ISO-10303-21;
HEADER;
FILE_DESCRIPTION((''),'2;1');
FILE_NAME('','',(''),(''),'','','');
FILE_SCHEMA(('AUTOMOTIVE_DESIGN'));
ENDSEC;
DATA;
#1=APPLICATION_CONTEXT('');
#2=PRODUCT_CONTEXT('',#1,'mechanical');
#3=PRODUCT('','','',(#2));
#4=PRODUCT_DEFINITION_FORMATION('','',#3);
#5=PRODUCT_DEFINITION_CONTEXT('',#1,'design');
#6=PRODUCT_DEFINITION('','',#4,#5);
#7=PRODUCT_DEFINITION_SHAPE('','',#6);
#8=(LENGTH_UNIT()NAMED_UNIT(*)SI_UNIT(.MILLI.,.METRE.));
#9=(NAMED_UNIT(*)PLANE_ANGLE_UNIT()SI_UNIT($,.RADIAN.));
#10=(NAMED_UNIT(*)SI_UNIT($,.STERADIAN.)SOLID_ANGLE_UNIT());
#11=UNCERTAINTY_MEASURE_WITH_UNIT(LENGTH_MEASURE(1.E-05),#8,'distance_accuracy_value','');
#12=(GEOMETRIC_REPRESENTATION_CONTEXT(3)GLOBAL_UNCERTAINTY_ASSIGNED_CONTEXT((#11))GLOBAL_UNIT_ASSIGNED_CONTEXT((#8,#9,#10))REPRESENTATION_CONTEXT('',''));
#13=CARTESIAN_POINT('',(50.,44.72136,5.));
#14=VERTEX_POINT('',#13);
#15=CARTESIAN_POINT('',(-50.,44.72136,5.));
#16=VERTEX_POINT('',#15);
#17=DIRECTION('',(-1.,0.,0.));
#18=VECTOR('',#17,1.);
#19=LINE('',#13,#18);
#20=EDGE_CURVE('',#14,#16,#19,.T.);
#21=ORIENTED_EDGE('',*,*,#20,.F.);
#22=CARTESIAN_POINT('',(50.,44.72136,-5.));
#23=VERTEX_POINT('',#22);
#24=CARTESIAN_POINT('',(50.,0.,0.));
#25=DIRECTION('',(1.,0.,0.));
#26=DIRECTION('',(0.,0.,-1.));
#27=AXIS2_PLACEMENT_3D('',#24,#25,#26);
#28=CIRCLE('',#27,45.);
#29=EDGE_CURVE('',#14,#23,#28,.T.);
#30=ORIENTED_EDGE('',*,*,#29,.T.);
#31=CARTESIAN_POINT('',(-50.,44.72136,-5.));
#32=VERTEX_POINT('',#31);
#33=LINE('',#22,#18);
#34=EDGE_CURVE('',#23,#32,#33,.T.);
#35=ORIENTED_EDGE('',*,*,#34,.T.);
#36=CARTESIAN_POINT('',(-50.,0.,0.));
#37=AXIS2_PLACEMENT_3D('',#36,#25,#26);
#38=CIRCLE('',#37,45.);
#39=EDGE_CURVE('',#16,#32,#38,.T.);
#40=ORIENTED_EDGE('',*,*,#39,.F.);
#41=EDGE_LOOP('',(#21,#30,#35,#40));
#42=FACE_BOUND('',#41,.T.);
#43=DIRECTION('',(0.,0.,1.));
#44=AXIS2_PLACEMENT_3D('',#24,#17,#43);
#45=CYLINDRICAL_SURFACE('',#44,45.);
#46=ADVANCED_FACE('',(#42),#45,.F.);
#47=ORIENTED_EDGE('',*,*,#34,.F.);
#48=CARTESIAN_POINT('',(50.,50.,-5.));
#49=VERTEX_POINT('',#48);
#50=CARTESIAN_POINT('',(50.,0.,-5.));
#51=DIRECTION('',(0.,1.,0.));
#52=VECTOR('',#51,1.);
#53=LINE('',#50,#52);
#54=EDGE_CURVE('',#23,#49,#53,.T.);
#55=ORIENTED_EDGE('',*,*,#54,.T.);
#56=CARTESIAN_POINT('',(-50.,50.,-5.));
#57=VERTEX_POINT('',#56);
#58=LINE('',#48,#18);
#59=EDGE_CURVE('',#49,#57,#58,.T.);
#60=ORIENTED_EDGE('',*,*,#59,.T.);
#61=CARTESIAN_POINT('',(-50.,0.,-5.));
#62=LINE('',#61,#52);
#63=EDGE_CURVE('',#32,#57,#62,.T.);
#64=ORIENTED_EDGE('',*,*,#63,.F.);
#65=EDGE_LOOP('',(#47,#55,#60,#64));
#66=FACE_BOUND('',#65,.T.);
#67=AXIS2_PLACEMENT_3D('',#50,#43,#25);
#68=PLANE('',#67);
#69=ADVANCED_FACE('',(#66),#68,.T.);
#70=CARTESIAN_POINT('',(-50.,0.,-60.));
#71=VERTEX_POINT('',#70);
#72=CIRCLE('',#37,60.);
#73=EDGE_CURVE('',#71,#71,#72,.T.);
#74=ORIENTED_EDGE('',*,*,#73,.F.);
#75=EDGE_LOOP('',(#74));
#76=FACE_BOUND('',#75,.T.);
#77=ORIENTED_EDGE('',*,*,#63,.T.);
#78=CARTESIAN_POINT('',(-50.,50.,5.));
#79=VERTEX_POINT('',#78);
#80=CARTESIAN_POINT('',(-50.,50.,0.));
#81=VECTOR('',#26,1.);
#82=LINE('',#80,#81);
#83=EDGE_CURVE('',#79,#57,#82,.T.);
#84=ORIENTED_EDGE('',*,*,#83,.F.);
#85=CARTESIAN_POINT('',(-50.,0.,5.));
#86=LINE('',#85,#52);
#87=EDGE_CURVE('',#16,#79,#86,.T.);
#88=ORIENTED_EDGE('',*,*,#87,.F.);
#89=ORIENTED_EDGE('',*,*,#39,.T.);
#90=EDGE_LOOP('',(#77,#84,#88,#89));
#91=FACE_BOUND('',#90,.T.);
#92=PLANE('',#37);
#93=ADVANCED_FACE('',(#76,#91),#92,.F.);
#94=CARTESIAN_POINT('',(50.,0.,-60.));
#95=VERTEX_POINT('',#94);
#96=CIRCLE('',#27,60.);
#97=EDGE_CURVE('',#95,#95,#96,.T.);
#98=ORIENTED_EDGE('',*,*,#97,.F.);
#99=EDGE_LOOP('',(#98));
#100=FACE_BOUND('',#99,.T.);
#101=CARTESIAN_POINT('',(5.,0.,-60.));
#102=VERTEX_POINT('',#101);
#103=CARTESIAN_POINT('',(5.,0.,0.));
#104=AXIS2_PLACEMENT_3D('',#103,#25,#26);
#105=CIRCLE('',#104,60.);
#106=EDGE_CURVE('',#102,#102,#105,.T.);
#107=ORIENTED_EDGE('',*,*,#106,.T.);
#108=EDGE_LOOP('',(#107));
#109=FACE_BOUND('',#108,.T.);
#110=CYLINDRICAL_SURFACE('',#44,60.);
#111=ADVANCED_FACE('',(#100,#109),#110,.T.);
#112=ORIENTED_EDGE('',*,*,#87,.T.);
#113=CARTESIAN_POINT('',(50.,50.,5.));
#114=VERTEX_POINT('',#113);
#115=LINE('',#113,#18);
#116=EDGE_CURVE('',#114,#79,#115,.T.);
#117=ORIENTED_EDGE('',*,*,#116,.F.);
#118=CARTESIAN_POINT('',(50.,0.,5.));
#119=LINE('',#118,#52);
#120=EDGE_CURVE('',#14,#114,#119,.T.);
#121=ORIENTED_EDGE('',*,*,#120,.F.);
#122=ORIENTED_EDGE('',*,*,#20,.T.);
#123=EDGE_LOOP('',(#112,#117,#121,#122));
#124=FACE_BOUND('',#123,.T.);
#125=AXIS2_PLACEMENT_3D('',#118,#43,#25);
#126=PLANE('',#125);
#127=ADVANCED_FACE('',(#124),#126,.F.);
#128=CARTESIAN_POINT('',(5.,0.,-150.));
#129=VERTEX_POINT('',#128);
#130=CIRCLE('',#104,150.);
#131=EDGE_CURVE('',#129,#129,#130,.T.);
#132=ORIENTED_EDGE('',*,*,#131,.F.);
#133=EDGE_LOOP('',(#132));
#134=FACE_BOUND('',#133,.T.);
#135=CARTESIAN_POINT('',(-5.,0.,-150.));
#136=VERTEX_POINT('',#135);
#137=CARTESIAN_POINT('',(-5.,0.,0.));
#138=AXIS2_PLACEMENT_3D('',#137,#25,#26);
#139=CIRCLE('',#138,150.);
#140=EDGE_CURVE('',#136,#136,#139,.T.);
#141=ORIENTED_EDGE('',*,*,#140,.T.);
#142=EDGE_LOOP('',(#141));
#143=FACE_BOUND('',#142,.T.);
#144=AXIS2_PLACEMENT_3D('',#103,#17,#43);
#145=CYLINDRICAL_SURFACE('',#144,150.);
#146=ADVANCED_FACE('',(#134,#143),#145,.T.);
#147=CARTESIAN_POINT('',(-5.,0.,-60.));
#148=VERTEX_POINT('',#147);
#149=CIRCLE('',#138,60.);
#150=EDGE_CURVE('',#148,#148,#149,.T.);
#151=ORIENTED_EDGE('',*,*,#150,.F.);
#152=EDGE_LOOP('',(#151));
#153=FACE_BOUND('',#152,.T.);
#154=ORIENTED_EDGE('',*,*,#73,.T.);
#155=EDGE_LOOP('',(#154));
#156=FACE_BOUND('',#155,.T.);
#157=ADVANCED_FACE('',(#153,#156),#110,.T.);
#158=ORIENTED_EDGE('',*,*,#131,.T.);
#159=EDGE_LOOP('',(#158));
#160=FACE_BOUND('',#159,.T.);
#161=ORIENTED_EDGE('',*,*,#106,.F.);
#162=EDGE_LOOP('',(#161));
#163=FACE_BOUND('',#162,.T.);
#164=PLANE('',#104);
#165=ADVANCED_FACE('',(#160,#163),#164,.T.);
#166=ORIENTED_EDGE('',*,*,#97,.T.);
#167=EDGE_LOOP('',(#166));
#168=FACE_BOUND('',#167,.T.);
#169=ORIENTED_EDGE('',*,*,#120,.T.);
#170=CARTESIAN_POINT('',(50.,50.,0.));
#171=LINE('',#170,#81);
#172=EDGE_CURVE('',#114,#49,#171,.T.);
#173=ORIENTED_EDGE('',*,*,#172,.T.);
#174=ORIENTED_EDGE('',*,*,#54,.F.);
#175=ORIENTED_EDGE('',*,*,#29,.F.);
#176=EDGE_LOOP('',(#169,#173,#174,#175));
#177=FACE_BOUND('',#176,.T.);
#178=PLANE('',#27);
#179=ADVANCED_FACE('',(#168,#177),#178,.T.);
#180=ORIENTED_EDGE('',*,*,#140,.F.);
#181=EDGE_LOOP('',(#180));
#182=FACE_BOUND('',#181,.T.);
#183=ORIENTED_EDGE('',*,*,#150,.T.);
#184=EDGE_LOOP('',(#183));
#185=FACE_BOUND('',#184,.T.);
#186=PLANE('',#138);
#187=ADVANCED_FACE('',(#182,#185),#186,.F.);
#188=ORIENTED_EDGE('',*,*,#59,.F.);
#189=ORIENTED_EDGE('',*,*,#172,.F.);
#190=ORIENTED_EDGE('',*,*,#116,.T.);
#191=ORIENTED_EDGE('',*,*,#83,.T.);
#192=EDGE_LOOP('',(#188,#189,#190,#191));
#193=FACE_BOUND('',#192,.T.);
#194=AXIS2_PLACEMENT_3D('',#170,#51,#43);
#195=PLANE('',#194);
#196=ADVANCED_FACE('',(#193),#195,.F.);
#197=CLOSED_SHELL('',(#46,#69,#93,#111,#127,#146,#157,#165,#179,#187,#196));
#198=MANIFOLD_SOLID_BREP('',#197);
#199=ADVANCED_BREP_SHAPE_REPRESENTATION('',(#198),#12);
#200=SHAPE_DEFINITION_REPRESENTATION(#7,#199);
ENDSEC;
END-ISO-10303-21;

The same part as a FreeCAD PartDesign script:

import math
import FreeCAD as App
import Part
import Sketcher
from FreeCAD import Vector
Q = App.Units.Quantity

doc = App.newDocument("Part")
body = doc.addObject("PartDesign::Body", "Body")

# Sketch on YZ plane
sketch1 = body.newObject("Sketcher::SketchObject", "Sketch")
sketch1.AttachmentSupport = (doc.getObject("YZ_Plane"), [""])
sketch1.MapMode = "FlatFace"
sketch1.addGeometry([
    Part.Circle(Vector(0, 0, 0), Vector(0, 0, 1), 60),  # 0
    Part.ArcOfCircle(Part.Circle(Vector(0, 0, 0), Vector(0, 0, 1), 45), math.radians(-90), math.radians(-6)),  # 1
    Part.ArcOfCircle(Part.Circle(Vector(0, 0, 0), Vector(0, 0, 1), 45), math.radians(6), math.radians(270)),  # 2
    Part.LineSegment(Vector(45, 5, 0), Vector(50, 5, 0)),  # 3
    Part.LineSegment(Vector(50, 5, 0), Vector(50, -5, 0)),  # 4
    Part.LineSegment(Vector(50, -5, 0), Vector(45, -5, 0)),  # 5
], False)
sketch1.addConstraint([
    Sketcher.Constraint("Tangent", 1, 1, 2, 2),
    Sketcher.Constraint("Coincident", 2, 1, 3, 1),
    Sketcher.Constraint("Coincident", 3, 2, 4, 1),
    Sketcher.Constraint("Coincident", 4, 2, 5, 1),
    Sketcher.Constraint("Coincident", 5, 2, 1, 2),
    Sketcher.Constraint("Horizontal", 3),
    Sketcher.Constraint("Vertical", 4),
    Sketcher.Constraint("Horizontal", 5),
    Sketcher.Constraint("Coincident", 0, 3, -1, 1),
    Sketcher.Constraint("Coincident", 1, 3, -1, 1),
    Sketcher.Constraint("Equal", 1, 2),
    Sketcher.Constraint("PointOnObject", 1, 1, -2),
    Sketcher.Constraint("Vertical", 2, 1, 5, 2),
    Sketcher.Constraint("Diameter", 0, Q("120 mm")),
    Sketcher.Constraint("Radius", 1, Q("45 mm")),
    Sketcher.Constraint("DistanceY", 4, 2, 4, 1, Q("10 mm")),
    Sketcher.Constraint("DistanceX", -1, 1, 3, 2, Q("50 mm")),
])
pad1 = body.newObject("PartDesign::Pad", "Pad")
pad1.Profile = sketch1
pad1.Length = 100
pad1.Midplane = True

# Sketch on YZ plane
sketch2 = body.newObject("Sketcher::SketchObject", "Sketch001")
sketch2.AttachmentSupport = (doc.getObject("YZ_Plane"), [""])
sketch2.MapMode = "FlatFace"
sketch2.addGeometry([
    Part.Circle(Vector(0, 0, 0), Vector(0, 0, 1), 150),
    Part.Circle(Vector(0, 0, 0), Vector(0, 0, 1), 60),
], False)
sketch2.addConstraint([
    Sketcher.Constraint("Coincident", 0, 3, -1, 1),
    Sketcher.Constraint("Coincident", 1, 3, -1, 1),
    Sketcher.Constraint("Diameter", 0, Q("300 mm")),
    Sketcher.Constraint("Diameter", 1, Q("120 mm")),
])
pad2 = body.newObject("PartDesign::Pad", "Pad001")
pad2.Profile = sketch2
pad2.Length = 10
pad2.Midplane = True

doc.recompute()
